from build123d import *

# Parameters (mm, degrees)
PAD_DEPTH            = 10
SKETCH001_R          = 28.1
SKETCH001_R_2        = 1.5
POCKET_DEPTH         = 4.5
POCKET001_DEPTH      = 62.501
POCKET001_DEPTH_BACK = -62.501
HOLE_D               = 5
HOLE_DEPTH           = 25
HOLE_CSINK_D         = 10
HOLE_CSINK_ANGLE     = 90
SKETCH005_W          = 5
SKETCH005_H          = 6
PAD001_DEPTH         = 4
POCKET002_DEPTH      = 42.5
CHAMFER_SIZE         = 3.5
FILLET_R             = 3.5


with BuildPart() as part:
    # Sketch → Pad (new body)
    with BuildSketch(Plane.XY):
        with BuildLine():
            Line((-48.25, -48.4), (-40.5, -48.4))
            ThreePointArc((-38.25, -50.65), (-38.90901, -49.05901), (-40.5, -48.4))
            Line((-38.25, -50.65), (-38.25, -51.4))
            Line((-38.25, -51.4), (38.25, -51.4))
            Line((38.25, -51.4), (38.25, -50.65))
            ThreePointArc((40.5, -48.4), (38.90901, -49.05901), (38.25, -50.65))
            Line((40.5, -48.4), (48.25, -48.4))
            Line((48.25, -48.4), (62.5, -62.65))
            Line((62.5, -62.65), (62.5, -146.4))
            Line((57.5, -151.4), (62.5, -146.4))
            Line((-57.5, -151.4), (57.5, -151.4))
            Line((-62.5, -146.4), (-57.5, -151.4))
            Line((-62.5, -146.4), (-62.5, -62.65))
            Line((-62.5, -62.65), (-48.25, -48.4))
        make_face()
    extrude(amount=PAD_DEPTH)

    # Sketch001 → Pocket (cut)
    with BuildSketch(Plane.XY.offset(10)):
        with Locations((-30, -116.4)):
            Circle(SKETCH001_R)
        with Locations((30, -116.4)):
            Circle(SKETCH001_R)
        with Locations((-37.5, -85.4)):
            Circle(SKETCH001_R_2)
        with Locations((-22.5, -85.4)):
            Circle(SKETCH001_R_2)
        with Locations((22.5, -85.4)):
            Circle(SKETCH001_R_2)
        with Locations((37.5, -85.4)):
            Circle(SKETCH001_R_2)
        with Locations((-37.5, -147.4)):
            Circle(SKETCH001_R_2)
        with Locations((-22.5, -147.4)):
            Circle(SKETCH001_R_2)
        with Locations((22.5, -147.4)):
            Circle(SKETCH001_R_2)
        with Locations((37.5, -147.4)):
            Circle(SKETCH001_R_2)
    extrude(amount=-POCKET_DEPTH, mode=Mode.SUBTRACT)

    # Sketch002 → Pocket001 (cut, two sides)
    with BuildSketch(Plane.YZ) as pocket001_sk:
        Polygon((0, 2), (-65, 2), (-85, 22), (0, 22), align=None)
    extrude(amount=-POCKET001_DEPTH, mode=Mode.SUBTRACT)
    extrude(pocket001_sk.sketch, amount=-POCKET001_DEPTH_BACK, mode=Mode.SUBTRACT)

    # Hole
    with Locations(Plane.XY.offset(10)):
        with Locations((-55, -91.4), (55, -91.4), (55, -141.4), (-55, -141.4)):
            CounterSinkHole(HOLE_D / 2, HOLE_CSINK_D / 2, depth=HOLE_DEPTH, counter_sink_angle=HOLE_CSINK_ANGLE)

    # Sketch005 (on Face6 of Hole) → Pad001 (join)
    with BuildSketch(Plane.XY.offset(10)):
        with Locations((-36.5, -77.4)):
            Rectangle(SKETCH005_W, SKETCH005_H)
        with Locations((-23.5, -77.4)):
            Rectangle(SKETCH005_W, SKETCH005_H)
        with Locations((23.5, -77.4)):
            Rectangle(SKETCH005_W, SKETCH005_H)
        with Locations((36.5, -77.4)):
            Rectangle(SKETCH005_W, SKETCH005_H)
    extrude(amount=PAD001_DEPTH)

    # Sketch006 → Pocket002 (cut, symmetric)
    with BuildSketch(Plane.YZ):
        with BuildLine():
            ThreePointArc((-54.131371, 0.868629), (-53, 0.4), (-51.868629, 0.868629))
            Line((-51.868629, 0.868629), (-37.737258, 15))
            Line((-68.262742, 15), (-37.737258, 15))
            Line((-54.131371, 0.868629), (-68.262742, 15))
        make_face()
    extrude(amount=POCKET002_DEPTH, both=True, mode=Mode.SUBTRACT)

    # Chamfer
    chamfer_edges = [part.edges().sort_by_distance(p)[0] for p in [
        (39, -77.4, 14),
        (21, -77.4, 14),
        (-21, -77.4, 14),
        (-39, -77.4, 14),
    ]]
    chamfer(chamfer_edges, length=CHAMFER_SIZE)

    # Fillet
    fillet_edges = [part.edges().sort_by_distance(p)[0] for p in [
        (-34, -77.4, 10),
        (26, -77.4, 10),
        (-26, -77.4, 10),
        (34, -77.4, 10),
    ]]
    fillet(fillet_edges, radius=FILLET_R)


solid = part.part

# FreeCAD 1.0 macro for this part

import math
import FreeCAD as App
import Part
import Sketcher

V = App.Vector
Q = App.Units.Quantity


def edges_at(feature, points):
    """Names of the edges that pass closest to the given points."""
    edges = feature.Shape.Edges
    near = lambda p: min(range(len(edges)), key=lambda i: edges[i].distToShape(Part.Vertex(*p))[0])
    return sorted({f"Edge{near(p) + 1}" for p in points})


def add_polygon(sketch, points):
    """Adds a closed chain of lines whose ends are joined by coincident constraints."""
    first, n = sketch.GeometryCount, len(points)
    for a, b in zip(points, points[1:] + points[:1]):
        sketch.addGeometry(Part.LineSegment(App.Vector(*a, 0), App.Vector(*b, 0)), False)
    for i in range(n):
        sketch.addConstraint(Sketcher.Constraint("Coincident", first + i, 2, first + (i + 1) % n, 1))

doc = App.newDocument("Part")
body = doc.addObject("PartDesign::Body", "Body")

# Sketch on XY plane
sketch1 = body.newObject("Sketcher::SketchObject", "Sketch")
sketch1.AttachmentSupport = (doc.getObject("XY_Plane"), [""])
sketch1.MapMode = "FlatFace"
sketch1.addGeometry([
    Part.LineSegment(V(-40.5, -48.4, 0), V(-48.25, -48.4, 0)),  # 0
    Part.LineSegment(V(-48.25, -48.4, 0), V(-62.5, -62.65, 0)),  # 1
    Part.LineSegment(V(-62.5, -62.65, 0), V(-62.5, -146.4, 0)),  # 2
    Part.LineSegment(V(-62.5, -146.4, 0), V(-57.5, -151.4, 0)),  # 3
    Part.LineSegment(V(-57.5, -151.4, 0), V(57.5, -151.4, 0)),  # 4
    Part.LineSegment(V(57.5, -151.4, 0), V(62.5, -146.4, 0)),  # 5
    Part.LineSegment(V(62.5, -146.4, 0), V(62.5, -62.65, 0)),  # 6
    Part.LineSegment(V(62.5, -62.65, 0), V(48.25, -48.4, 0)),  # 7
    Part.LineSegment(V(48.25, -48.4, 0), V(40.5, -48.4, 0)),  # 8
    Part.ArcOfCircle(Part.Circle(V(40.500001, -50.650001, 0), V(0, 0, 1), 2.250001), math.radians(90.000022), math.radians(179.999978)),  # 9
    Part.LineSegment(V(38.25, -50.65, 0), V(38.25, -51.4, 0)),  # 10
    Part.LineSegment(V(38.25, -51.4, 0), V(-38.25, -51.4, 0)),  # 11
    Part.LineSegment(V(-38.25, -51.4, 0), V(-38.25, -50.65, 0)),  # 12
    Part.ArcOfCircle(Part.Circle(V(-40.500001, -50.650001, 0), V(0, 0, 1), 2.250001), math.radians(0.000022), math.radians(89.999978)),  # 13
], False)
sketch1.addConstraint([
    Sketcher.Constraint("Coincident", 0, 2, 1, 1),
    Sketcher.Constraint("Coincident", 1, 2, 2, 1),
    Sketcher.Constraint("Coincident", 2, 2, 3, 1),
    Sketcher.Constraint("Coincident", 3, 2, 4, 1),
    Sketcher.Constraint("Coincident", 4, 2, 5, 1),
    Sketcher.Constraint("Coincident", 5, 2, 6, 1),
    Sketcher.Constraint("Coincident", 6, 2, 7, 1),
    Sketcher.Constraint("Coincident", 7, 2, 8, 1),
    Sketcher.Constraint("Tangent", 8, 2, 9, 1),
    Sketcher.Constraint("Tangent", 9, 2, 10, 1),
    Sketcher.Constraint("Coincident", 10, 2, 11, 1),
    Sketcher.Constraint("Coincident", 11, 2, 12, 1),
    Sketcher.Constraint("Tangent", 12, 2, 13, 1),
    Sketcher.Constraint("Tangent", 13, 2, 0, 1),
    Sketcher.Constraint("Horizontal", 0),
    Sketcher.Constraint("Vertical", 2),
    Sketcher.Constraint("Horizontal", 4),
    Sketcher.Constraint("Vertical", 6),
    Sketcher.Constraint("Horizontal", 8),
    Sketcher.Constraint("Vertical", 10),
    Sketcher.Constraint("Horizontal", 11),
    Sketcher.Constraint("Vertical", 12),
    Sketcher.Constraint("Equal", 9, 13),
    Sketcher.Constraint("Symmetric", 9, 3, 13, 3, -2),
    Sketcher.Constraint("Symmetric", 2, 2, 5, 2, -2),
    Sketcher.Constraint("Perpendicular", 1, 3),
    Sketcher.Constraint("Perpendicular", 3, 5),
    Sketcher.Constraint("Perpendicular", 5, 7),
    Sketcher.Constraint("Horizontal", 1, 2, 6, 2),
    Sketcher.Constraint("Equal", 0, 8),
    Sketcher.Constraint("DistanceX", 4, 1, 4, 2, Q("115 mm")),
    Sketcher.Constraint("Radius", 9, Q("2.250001 mm")),
    Sketcher.Constraint("DistanceX", 11, 2, 11, 1, Q("76.5 mm")),
    Sketcher.Constraint("DistanceX", 1, 2, 13, 3, Q("21.999999 mm")),
    Sketcher.Constraint("DistanceY", 1, 2, 13, 3, Q("11.999999 mm")),
    Sketcher.Constraint("DistanceY", 2, 2, 0, 2, Q("98 mm")),
    Sketcher.Constraint("DistanceY", 10, 2, 8, 2, Q("3 mm")),
    Sketcher.Constraint("DistanceY", 0, 2, -1, 1, Q("48.4 mm")),
])
pad1 = body.newObject("PartDesign::Pad", "Pad")
pad1.Profile = sketch1
pad1.Length = 10

# Sketch on XY plane
sketch2 = body.newObject("Sketcher::SketchObject", "Sketch001")
sketch2.AttachmentSupport = (doc.getObject("XY_Plane"), [""])
sketch2.MapMode = "FlatFace"
sketch2.AttachmentOffset = App.Placement(V(0, 0, 10), App.Rotation())
sketch2.addGeometry([
    Part.Circle(V(-30, -116.4, 0), V(0, 0, 1), 28.1),  # 0
    Part.Circle(V(30, -116.4, 0), V(0, 0, 1), 28.1),  # 1
    Part.Circle(V(-37.5, -85.4, 0), V(0, 0, 1), 1.5),  # 2
    Part.Circle(V(-22.5, -85.4, 0), V(0, 0, 1), 1.5),  # 3
    Part.Circle(V(22.5, -85.4, 0), V(0, 0, 1), 1.5),  # 4
    Part.Circle(V(37.5, -85.4, 0), V(0, 0, 1), 1.5),  # 5
    Part.Circle(V(-37.5, -147.4, 0), V(0, 0, 1), 1.5),  # 6
    Part.Circle(V(-22.5, -147.4, 0), V(0, 0, 1), 1.5),  # 7
    Part.Circle(V(22.5, -147.4, 0), V(0, 0, 1), 1.5),  # 8
    Part.Circle(V(37.5, -147.4, 0), V(0, 0, 1), 1.5),  # 9
], False)
sketch2.addConstraint([
    Sketcher.Constraint("Equal", 0, 1),
    Sketcher.Constraint("Equal", 2, 3),
    Sketcher.Constraint("Equal", 3, 4),
    Sketcher.Constraint("Equal", 4, 5),
    Sketcher.Constraint("Equal", 5, 6),
    Sketcher.Constraint("Equal", 6, 7),
    Sketcher.Constraint("Equal", 7, 8),
    Sketcher.Constraint("Equal", 8, 9),
    Sketcher.Constraint("Symmetric", 0, 3, 1, 3, -2),
    Sketcher.Constraint("Symmetric", 3, 3, 4, 3, -2),
    Sketcher.Constraint("Symmetric", 2, 3, 5, 3, -2),
    Sketcher.Constraint("Symmetric", 7, 3, 8, 3, -2),
    Sketcher.Constraint("Symmetric", 6, 3, 9, 3, -2),
    Sketcher.Constraint("Horizontal", 2, 3, 3, 3),
    Sketcher.Constraint("Horizontal", 6, 3, 7, 3),
    Sketcher.Constraint("Vertical", 2, 3, 6, 3),
    Sketcher.Constraint("Vertical", 3, 3, 7, 3),
    Sketcher.Constraint("Diameter", 2, Q("3 mm")),
    Sketcher.Constraint("Diameter", 0, Q("56.2 mm")),
    Sketcher.Constraint("DistanceX", 0, 3, -1, 1, Q("30 mm")),
    Sketcher.Constraint("DistanceY", 0, 3, 2, 3, Q("31 mm")),
    Sketcher.Constraint("DistanceX", 2, 3, 3, 3, Q("15 mm")),
    Sketcher.Constraint("DistanceX", 3, 3, 4, 3, Q("45 mm")),
    Sketcher.Constraint("DistanceY", 6, 3, 0, 3, Q("31 mm")),
    Sketcher.Constraint("DistanceY", 0, 3, -1, 1, Q("116.4 mm")),
])
pocket1 = body.newObject("PartDesign::Pocket", "Pocket")
pocket1.Profile = sketch2
pocket1.Length = 4.5

# Sketch on YZ plane
sketch3 = body.newObject("Sketcher::SketchObject", "Sketch002")
sketch3.AttachmentSupport = (doc.getObject("YZ_Plane"), [""])
sketch3.MapMode = "FlatFace"
add_polygon(sketch3, [(-65, 2), (0, 2), (0, 22), (-85, 22)])  # lines 0-3
sketch3.addConstraint([
    Sketcher.Constraint("Horizontal", 0),
    Sketcher.Constraint("Vertical", 1),
    Sketcher.Constraint("Horizontal", 2),
    Sketcher.Constraint("PointOnObject", 0, 2, -2),
    Sketcher.Constraint("DistanceX", 0, 1, 0, 2, Q("65 mm")),
    Sketcher.Constraint("DistanceX", 2, 2, 2, 1, Q("85 mm")),
    Sketcher.Constraint("DistanceY", 1, 1, 1, 2, Q("20 mm")),
    Sketcher.Constraint("DistanceY", -1, 1, 0, 2, Q("2 mm")),
])
pocket2 = body.newObject("PartDesign::Pocket", "Pocket001")
pocket2.Profile = sketch3
pocket2.Type = "ThroughAll"
pocket2.Midplane = True

# Sketch on XY plane
sketch4 = body.newObject("Sketcher::SketchObject", "Sketch003")
sketch4.AttachmentSupport = (doc.getObject("XY_Plane"), [""])
sketch4.MapMode = "FlatFace"
sketch4.AttachmentOffset = App.Placement(V(0, 0, 10), App.Rotation())
sketch4.addGeometry([
    Part.Circle(V(-55, -91.4, 0), V(0, 0, 1), 2.5),
    Part.Circle(V(55, -91.4, 0), V(0, 0, 1), 2.5),
    Part.Circle(V(55, -141.4, 0), V(0, 0, 1), 2.5),
    Part.Circle(V(-55, -141.4, 0), V(0, 0, 1), 2.5),
], False)
sketch4.addConstraint([
    Sketcher.Constraint("Equal", 0, 1),
    Sketcher.Constraint("Equal", 1, 2),
    Sketcher.Constraint("Equal", 2, 3),
    Sketcher.Constraint("Symmetric", 0, 3, 1, 3, -2),
    Sketcher.Constraint("Symmetric", 2, 3, 3, 3, -2),
    Sketcher.Constraint("Vertical", 1, 3, 2, 3),
    Sketcher.Constraint("Diameter", 0, Q("5 mm")),
    Sketcher.Constraint("DistanceX", 0, 3, -1, 1, Q("55 mm")),
    Sketcher.Constraint("DistanceY", 2, 3, 1, 3, Q("50 mm")),
    Sketcher.Constraint("DistanceY", 0, 3, -1, 1, Q("91.4 mm")),
])
doc.recompute()
hole = body.newObject("PartDesign::Hole", "Hole")
hole.Profile = sketch4
hole.ThreadType = "None"
hole.Diameter = 5
hole.DepthType = "Dimension"
hole.Depth = 25
hole.DrillPoint = "Flat"
hole.HoleCutType = "Countersink"
hole.HoleCutDiameter = 10
hole.HoleCutCountersinkAngle = 90

# Sketch on XY plane
sketch5 = body.newObject("Sketcher::SketchObject", "Sketch004")
sketch5.AttachmentSupport = (doc.getObject("XY_Plane"), [""])
sketch5.MapMode = "FlatFace"
sketch5.AttachmentOffset = App.Placement(V(0, 0, 10), App.Rotation())
add_polygon(sketch5, [(-39, -74.4), (-39, -80.4), (-34, -80.4), (-34, -74.4)])  # lines 0-3
add_polygon(sketch5, [(-26, -74.4), (-26, -80.4), (-21, -80.4), (-21, -74.4)])  # lines 4-7
add_polygon(sketch5, [(21, -74.4), (21, -80.4), (26, -80.4), (26, -74.4)])  # lines 8-11
add_polygon(sketch5, [(34, -74.4), (34, -80.4), (39, -80.4), (39, -74.4)])  # lines 12-15
sketch5.addConstraint([
    Sketcher.Constraint("Vertical", 0),
    Sketcher.Constraint("Horizontal", 1),
    Sketcher.Constraint("Vertical", 2),
    Sketcher.Constraint("Horizontal", 3),
    Sketcher.Constraint("Vertical", 4),
    Sketcher.Constraint("Horizontal", 5),
    Sketcher.Constraint("Vertical", 6),
    Sketcher.Constraint("Horizontal", 7),
    Sketcher.Constraint("Vertical", 8),
    Sketcher.Constraint("Horizontal", 9),
    Sketcher.Constraint("Vertical", 10),
    Sketcher.Constraint("Horizontal", 11),
    Sketcher.Constraint("Vertical", 12),
    Sketcher.Constraint("Horizontal", 13),
    Sketcher.Constraint("Vertical", 14),
    Sketcher.Constraint("Horizontal", 15),
    Sketcher.Constraint("Symmetric", 5, 2, 8, 2, -2),
    Sketcher.Constraint("Symmetric", 7, 2, 10, 2, -2),
    Sketcher.Constraint("Symmetric", 1, 2, 12, 2, -2),
    Sketcher.Constraint("Symmetric", 3, 2, 14, 2, -2),
    Sketcher.Constraint("Horizontal", 1, 2, 4, 2),
    Sketcher.Constraint("Horizontal", 3, 2, 6, 2),
    Sketcher.Constraint("Equal", 3, 5),
    Sketcher.Constraint("DistanceX", 1, 1, 1, 2, Q("5 mm")),
    Sketcher.Constraint("DistanceY", 0, 2, 0, 1, Q("6 mm")),
    Sketcher.Constraint("DistanceX", 0, 2, -1, 1, Q("39 mm")),
    Sketcher.Constraint("DistanceX", 4, 2, -1, 1, Q("26 mm")),
    Sketcher.Constraint("DistanceY", 0, 2, -1, 1, Q("80.4 mm")),
])
pad2 = body.newObject("PartDesign::Pad", "Pad001")
pad2.Profile = sketch5
pad2.Length = 4

# Sketch on YZ plane
sketch6 = body.newObject("Sketcher::SketchObject", "Sketch005")
sketch6.AttachmentSupport = (doc.getObject("YZ_Plane"), [""])
sketch6.MapMode = "FlatFace"
sketch6.addGeometry([
    Part.ArcOfCircle(Part.Circle(V(-53, 2.000001, 0), V(0, 0, 1), 1.600001), math.radians(-134.999982), math.radians(-45.000018)),
    Part.LineSegment(V(-51.868629, 0.868629, 0), V(-37.737258, 15, 0)),
    Part.LineSegment(V(-37.737258, 15, 0), V(-68.262742, 15, 0)),
    Part.LineSegment(V(-68.262742, 15, 0), V(-54.131371, 0.868629, 0)),
], False)
sketch6.addConstraint([
    Sketcher.Constraint("Tangent", 0, 2, 1, 1),
    Sketcher.Constraint("Coincident", 1, 2, 2, 1),
    Sketcher.Constraint("Coincident", 2, 2, 3, 1),
    Sketcher.Constraint("Tangent", 3, 2, 0, 1),
    Sketcher.Constraint("Horizontal", 2),
    Sketcher.Constraint("Perpendicular", 1, 3),
    Sketcher.Constraint("Horizontal", 0, 2, 3, 2),
    Sketcher.Constraint("Radius", 0, Q("1.600001 mm")),
    Sketcher.Constraint("DistanceX", 0, 3, -1, 1, Q("53 mm")),
    Sketcher.Constraint("DistanceY", -1, 1, 0, 3, Q("2.000001 mm")),
    Sketcher.Constraint("DistanceY", -1, 1, 1, 2, Q("15 mm")),
])
pocket3 = body.newObject("PartDesign::Pocket", "Pocket002")
pocket3.Profile = sketch6
pocket3.Length = 85
pocket3.Midplane = True
doc.recompute()

chamfer = body.newObject("PartDesign::Chamfer", "Chamfer")
chamfer.Base = (pocket3, edges_at(pocket3, [
    (39, -77.4, 14),
    (21, -77.4, 14),
    (-21, -77.4, 14),
    (-39, -77.4, 14),
]))
chamfer.Size = 3.5
doc.recompute()

fillet = body.newObject("PartDesign::Fillet", "Fillet")
fillet.Base = (chamfer, edges_at(chamfer, [
    (-34, -77.4, 10),
    (26, -77.4, 10),
    (-26, -77.4, 10),
    (34, -77.4, 10),
]))
fillet.Radius = 3.5

doc.recompute()
